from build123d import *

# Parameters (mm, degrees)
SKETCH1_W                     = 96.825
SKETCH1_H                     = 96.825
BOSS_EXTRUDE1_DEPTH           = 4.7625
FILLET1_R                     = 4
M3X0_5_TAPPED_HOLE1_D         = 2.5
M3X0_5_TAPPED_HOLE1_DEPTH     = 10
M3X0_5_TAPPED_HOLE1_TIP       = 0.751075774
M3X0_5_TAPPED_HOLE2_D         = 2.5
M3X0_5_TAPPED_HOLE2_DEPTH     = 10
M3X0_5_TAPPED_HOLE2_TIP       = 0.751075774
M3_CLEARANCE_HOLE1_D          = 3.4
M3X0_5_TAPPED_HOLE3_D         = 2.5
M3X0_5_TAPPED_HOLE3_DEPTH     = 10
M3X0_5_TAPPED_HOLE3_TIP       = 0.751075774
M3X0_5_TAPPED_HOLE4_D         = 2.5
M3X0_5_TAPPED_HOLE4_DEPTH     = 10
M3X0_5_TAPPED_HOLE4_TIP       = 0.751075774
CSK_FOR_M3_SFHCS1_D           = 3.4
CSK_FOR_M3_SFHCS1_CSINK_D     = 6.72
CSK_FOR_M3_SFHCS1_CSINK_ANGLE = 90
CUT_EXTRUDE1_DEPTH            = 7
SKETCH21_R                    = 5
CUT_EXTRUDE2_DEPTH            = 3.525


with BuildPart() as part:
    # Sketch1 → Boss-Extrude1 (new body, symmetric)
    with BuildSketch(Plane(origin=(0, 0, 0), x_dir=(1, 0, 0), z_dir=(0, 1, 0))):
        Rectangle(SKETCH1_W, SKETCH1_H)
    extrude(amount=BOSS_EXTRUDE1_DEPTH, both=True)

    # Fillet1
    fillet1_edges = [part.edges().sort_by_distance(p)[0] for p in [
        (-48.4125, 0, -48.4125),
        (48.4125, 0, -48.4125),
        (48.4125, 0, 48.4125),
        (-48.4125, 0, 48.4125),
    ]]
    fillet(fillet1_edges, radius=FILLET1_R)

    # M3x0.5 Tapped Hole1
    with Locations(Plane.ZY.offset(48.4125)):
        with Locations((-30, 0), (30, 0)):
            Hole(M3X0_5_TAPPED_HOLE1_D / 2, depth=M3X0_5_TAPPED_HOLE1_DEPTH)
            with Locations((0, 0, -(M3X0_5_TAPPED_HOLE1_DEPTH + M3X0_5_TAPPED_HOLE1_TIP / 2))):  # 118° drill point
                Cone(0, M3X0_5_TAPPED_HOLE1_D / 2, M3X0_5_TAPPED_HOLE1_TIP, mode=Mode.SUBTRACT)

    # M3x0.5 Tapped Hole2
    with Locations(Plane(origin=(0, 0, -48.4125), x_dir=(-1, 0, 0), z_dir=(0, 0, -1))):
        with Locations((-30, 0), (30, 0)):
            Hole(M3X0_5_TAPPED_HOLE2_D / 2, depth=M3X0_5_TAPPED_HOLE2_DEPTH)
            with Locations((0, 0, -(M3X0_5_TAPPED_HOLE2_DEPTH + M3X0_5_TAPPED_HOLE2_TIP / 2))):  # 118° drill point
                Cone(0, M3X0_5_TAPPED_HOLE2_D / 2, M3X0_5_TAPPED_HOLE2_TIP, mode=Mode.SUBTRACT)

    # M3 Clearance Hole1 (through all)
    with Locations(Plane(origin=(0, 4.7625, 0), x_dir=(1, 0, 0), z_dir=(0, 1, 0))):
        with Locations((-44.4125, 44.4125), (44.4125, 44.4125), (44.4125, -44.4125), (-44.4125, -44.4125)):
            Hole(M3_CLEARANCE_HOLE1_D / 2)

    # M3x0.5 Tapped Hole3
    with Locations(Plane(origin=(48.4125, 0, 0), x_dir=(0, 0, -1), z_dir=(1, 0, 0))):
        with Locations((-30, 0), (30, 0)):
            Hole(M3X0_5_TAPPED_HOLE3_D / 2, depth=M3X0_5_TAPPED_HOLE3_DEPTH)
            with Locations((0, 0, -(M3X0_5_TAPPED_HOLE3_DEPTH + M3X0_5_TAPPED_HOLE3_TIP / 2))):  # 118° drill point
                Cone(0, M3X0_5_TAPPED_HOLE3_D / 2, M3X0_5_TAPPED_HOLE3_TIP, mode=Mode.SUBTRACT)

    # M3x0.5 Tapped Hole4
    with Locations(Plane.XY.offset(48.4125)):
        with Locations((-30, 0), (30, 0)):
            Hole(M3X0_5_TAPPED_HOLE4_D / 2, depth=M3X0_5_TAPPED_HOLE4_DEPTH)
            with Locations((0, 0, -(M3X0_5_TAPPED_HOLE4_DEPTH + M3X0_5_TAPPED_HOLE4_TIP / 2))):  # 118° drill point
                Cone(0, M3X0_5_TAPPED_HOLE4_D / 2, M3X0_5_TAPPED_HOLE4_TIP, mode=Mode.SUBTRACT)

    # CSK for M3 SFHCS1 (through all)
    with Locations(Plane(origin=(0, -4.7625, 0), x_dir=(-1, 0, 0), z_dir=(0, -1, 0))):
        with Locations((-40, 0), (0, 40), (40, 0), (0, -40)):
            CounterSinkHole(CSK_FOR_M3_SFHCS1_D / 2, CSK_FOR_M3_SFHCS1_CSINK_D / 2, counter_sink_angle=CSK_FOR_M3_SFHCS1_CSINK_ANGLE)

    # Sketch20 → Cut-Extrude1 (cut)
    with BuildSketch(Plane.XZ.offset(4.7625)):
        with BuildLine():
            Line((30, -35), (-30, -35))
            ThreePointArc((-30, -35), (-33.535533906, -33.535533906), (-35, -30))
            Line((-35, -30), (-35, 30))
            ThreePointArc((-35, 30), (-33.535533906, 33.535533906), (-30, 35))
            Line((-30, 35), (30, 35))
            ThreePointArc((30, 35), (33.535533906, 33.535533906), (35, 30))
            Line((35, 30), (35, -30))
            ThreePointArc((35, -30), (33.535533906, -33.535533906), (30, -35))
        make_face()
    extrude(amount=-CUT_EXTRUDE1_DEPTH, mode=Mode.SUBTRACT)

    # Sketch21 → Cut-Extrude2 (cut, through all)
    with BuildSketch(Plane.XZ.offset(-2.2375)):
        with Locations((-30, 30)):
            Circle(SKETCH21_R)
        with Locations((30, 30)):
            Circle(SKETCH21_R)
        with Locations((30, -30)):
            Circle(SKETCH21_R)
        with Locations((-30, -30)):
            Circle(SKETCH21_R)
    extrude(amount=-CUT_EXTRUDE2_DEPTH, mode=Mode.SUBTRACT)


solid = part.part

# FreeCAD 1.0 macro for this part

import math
import FreeCAD as App
import Part
import Sketcher
from FreeCAD import Vector
Q = App.Units.Quantity


def edges_at(feature, points):
    """Names of the edges that pass closest to the given points."""
    edges = feature.Shape.Edges
    near = lambda p: min(range(len(edges)), key=lambda i: edges[i].distToShape(Part.Vertex(*p))[0])
    return sorted({f"Edge{near(p) + 1}" for p in points})

doc = App.newDocument("Part")
params = doc.addObject("Spreadsheet::Sheet", "Params")
for row, (alias, value) in enumerate([
    ("pad1_length", "9.525 mm"),
    ("fillet_radius", "4 mm"),
    ("sketch2_diameter", "2.5 mm"),
    ("hole_diameter", "2.5 mm"),
    ("hole_depth", "10 mm"),
    ("sketch3_diameter", "2.5 mm"),
    ("hole2_diameter", "2.5 mm"),
    ("hole2_depth", "10 mm"),
    ("sketch4_diameter", "3.4 mm"),
    ("hole3_diameter", "3.4 mm"),
    ("sketch5_diameter", "2.5 mm"),
    ("hole4_diameter", "2.5 mm"),
    ("hole4_depth", "10 mm"),
    ("sketch6_diameter", "2.5 mm"),
    ("hole5_diameter", "2.5 mm"),
    ("hole5_depth", "10 mm"),
    ("sketch7_diameter", "3.4 mm"),
    ("hole6_diameter", "3.4 mm"),
    ("hole6_csink_diameter", "6.72 mm"),
    ("sketch8_radius", "5 mm"),
    ("sketch8_width", "60 mm"),
    ("pocket1_length", "7 mm"),
    ("sketch9_diameter", "10 mm"),
], start=1):
    params.set(f"A{row}", alias)
    params.set(f"B{row}", "=" + value)
    params.setAlias(f"B{row}", alias)

body = doc.addObject("PartDesign::Body", "Body")

sketch1 = doc.addObject("Sketcher::SketchObject", "Sketch")
body.addObject(sketch1)
sketch1.AttachmentSupport = (doc.XZ_Plane, [""])
sketch1.MapMode = "FlatFace"
sketch1.addGeometry([
    Part.LineSegment(Vector(-48, -48, 0), Vector(-48, 48, 0)),
    Part.LineSegment(Vector(-48, 48, 0), Vector(48, 48, 0)),
    Part.LineSegment(Vector(48, 48, 0), Vector(48, -48, 0)),
    Part.LineSegment(Vector(48, -48, 0), Vector(-48, -48, 0)),
], False)
sketch1.addConstraint([
    Sketcher.Constraint("Coincident", 0, 2, 1, 1),
    Sketcher.Constraint("Coincident", 1, 2, 2, 1),
    Sketcher.Constraint("Coincident", 2, 2, 3, 1),
    Sketcher.Constraint("Coincident", 3, 2, 0, 1),
    Sketcher.Constraint("Vertical", 0),
    Sketcher.Constraint("Horizontal", 1),
    Sketcher.Constraint("Vertical", 2),
    Sketcher.Constraint("Horizontal", 3),
    Sketcher.Constraint("Symmetric", 0, 2, 2, 2, -1, 1),
    Sketcher.Constraint("Equal", 3, 0),
    Sketcher.Constraint("DistanceX", 1, 1, 1, 2, Q("96.825 mm")),
])
pad1 = doc.addObject("PartDesign::Pad", "Pad")
body.addObject(pad1)
pad1.Profile = sketch1
pad1.setExpression("Length", "Params.pad1_length")
pad1.Midplane = True
doc.recompute()

fillet = doc.addObject("PartDesign::Fillet", "Fillet")
body.addObject(fillet)
fillet.Base = (pad1, edges_at(pad1, [
    (-48.413, 0, -48.413),
    (48.413, 0, -48.413),
    (48.413, 0, 48.413),
    (-48.413, 0, 48.413),
]))
fillet.setExpression("Radius", "Params.fillet_radius")

sketch2 = doc.addObject("Sketcher::SketchObject", "Sketch001")
body.addObject(sketch2)
sketch2.AttachmentSupport = (doc.YZ_Plane, [""])
sketch2.MapMode = "FlatFace"
sketch2.AttachmentOffset = App.Placement(Vector(0, 0, -48.4125), App.Rotation())
sketch2.addGeometry([
    Part.Circle(Vector(0, -30, 0), Vector(0, 0, 1), 1.2),
    Part.Circle(Vector(0, 30, 0), Vector(0, 0, 1), 1.2),
], False)
sketch2.addConstraint([
    Sketcher.Constraint("Equal", 0, 1),
    Sketcher.Constraint("Symmetric", 0, 3, 1, 3, -1, 1),
    Sketcher.Constraint("PointOnObject", 0, 3, -2),
    Sketcher.Constraint("Diameter", 0, Q("2.5 mm")),
    Sketcher.Constraint("DistanceY", 0, 3, -1, 1, Q("30 mm")),
])
sketch2.setExpression("Constraints[3]", "Params.sketch2_diameter")
doc.recompute()
hole = doc.addObject("PartDesign::Hole", "Hole")
body.addObject(hole)
hole.Profile = sketch2
hole.ThreadType = "None"
hole.setExpression("Diameter", "Params.hole_diameter")
hole.DepthType = "Dimension"
hole.setExpression("Depth", "Params.hole_depth")
hole.DrillPoint = "Angled"
hole.DrillPointAngle = 118
hole.Reversed = True

sketch3 = doc.addObject("Sketcher::SketchObject", "Sketch002")
body.addObject(sketch3)
sketch3.AttachmentSupport = (doc.XY_Plane, [""])
sketch3.MapMode = "FlatFace"
sketch3.AttachmentOffset = App.Placement(Vector(0, 0, -48.4125), App.Rotation())
sketch3.addGeometry([
    Part.Circle(Vector(30, 0, 0), Vector(0, 0, 1), 1.2),
    Part.Circle(Vector(-30, 0, 0), Vector(0, 0, 1), 1.2),
], False)
sketch3.addConstraint([
    Sketcher.Constraint("Equal", 0, 1),
    Sketcher.Constraint("Symmetric", 0, 3, 1, 3, -1, 1),
    Sketcher.Constraint("PointOnObject", 0, 3, -1),
    Sketcher.Constraint("Diameter", 0, Q("2.5 mm")),
    Sketcher.Constraint("DistanceX", -1, 1, 0, 3, Q("30 mm")),
])
sketch3.setExpression("Constraints[3]", "Params.sketch3_diameter")
doc.recompute()
hole2 = doc.addObject("PartDesign::Hole", "Hole001")
body.addObject(hole2)
hole2.Profile = sketch3
hole2.ThreadType = "None"
hole2.setExpression("Diameter", "Params.hole2_diameter")
hole2.DepthType = "Dimension"
hole2.setExpression("Depth", "Params.hole2_depth")
hole2.DrillPoint = "Angled"
hole2.DrillPointAngle = 118
hole2.Reversed = True

sketch4 = doc.addObject("Sketcher::SketchObject", "Sketch003")
body.addObject(sketch4)
sketch4.AttachmentSupport = (doc.XZ_Plane, [""])
sketch4.MapMode = "FlatFace"
sketch4.AttachmentOffset = App.Placement(Vector(0, 0, -4.7625), App.Rotation())
sketch4.addGeometry([
    Part.Circle(Vector(-44.4, -44.4, 0), Vector(0, 0, 1), 1.7),
    Part.Circle(Vector(44.4, -44.4, 0), Vector(0, 0, 1), 1.7),
    Part.Circle(Vector(44.4, 44.4, 0), Vector(0, 0, 1), 1.7),
    Part.Circle(Vector(-44.4, 44.4, 0), Vector(0, 0, 1), 1.7),
], False)
sketch4.addConstraint([
    Sketcher.Constraint("Equal", 0, 1),
    Sketcher.Constraint("Equal", 1, 2),
    Sketcher.Constraint("Equal", 2, 3),
    Sketcher.Constraint("Symmetric", 0, 3, 2, 3, -1, 1),
    Sketcher.Constraint("Symmetric", 1, 3, 3, 3, -1, 1),
    Sketcher.Constraint("Symmetric", 0, 3, 1, 3, -2),
    Sketcher.Constraint("Diameter", 0, Q("3.4 mm")),
    Sketcher.Constraint("DistanceX", 0, 3, 1, 3, Q("88.825 mm")),
    Sketcher.Constraint("DistanceY", 1, 3, 2, 3, Q("88.825 mm")),
])
sketch4.setExpression("Constraints[6]", "Params.sketch4_diameter")
doc.recompute()
hole3 = doc.addObject("PartDesign::Hole", "Hole002")
body.addObject(hole3)
hole3.Profile = sketch4
hole3.ThreadType = "None"
hole3.setExpression("Diameter", "Params.hole3_diameter")
hole3.DepthType = "ThroughAll"
hole3.Reversed = True

sketch5 = doc.addObject("Sketcher::SketchObject", "Sketch004")
body.addObject(sketch5)
sketch5.AttachmentSupport = (doc.YZ_Plane, [""])
sketch5.MapMode = "FlatFace"
sketch5.AttachmentOffset = App.Placement(Vector(0, 0, 48.4125), App.Rotation())
sketch5.addGeometry([
    Part.Circle(Vector(0, 30, 0), Vector(0, 0, 1), 1.2),
    Part.Circle(Vector(0, -30, 0), Vector(0, 0, 1), 1.2),
], False)
sketch5.addConstraint([
    Sketcher.Constraint("Equal", 0, 1),
    Sketcher.Constraint("Symmetric", 0, 3, 1, 3, -1, 1),
    Sketcher.Constraint("PointOnObject", 0, 3, -2),
    Sketcher.Constraint("Diameter", 0, Q("2.5 mm")),
    Sketcher.Constraint("DistanceY", -1, 1, 0, 3, Q("30 mm")),
])
sketch5.setExpression("Constraints[3]", "Params.sketch5_diameter")
doc.recompute()
hole4 = doc.addObject("PartDesign::Hole", "Hole003")
body.addObject(hole4)
hole4.Profile = sketch5
hole4.ThreadType = "None"
hole4.setExpression("Diameter", "Params.hole4_diameter")
hole4.DepthType = "Dimension"
hole4.setExpression("Depth", "Params.hole4_depth")
hole4.DrillPoint = "Angled"
hole4.DrillPointAngle = 118

sketch6 = doc.addObject("Sketcher::SketchObject", "Sketch005")
body.addObject(sketch6)
sketch6.AttachmentSupport = (doc.XY_Plane, [""])
sketch6.MapMode = "FlatFace"
sketch6.AttachmentOffset = App.Placement(Vector(0, 0, 48.4125), App.Rotation())
sketch6.addGeometry([
    Part.Circle(Vector(-30, 0, 0), Vector(0, 0, 1), 1.2),
    Part.Circle(Vector(30, 0, 0), Vector(0, 0, 1), 1.2),
], False)
sketch6.addConstraint([
    Sketcher.Constraint("Equal", 0, 1),
    Sketcher.Constraint("Symmetric", 0, 3, 1, 3, -1, 1),
    Sketcher.Constraint("PointOnObject", 0, 3, -1),
    Sketcher.Constraint("Diameter", 0, Q("2.5 mm")),
    Sketcher.Constraint("DistanceX", 0, 3, -1, 1, Q("30 mm")),
])
sketch6.setExpression("Constraints[3]", "Params.sketch6_diameter")
doc.recompute()
hole5 = doc.addObject("PartDesign::Hole", "Hole004")
body.addObject(hole5)
hole5.Profile = sketch6
hole5.ThreadType = "None"
hole5.setExpression("Diameter", "Params.hole5_diameter")
hole5.DepthType = "Dimension"
hole5.setExpression("Depth", "Params.hole5_depth")
hole5.DrillPoint = "Angled"
hole5.DrillPointAngle = 118

sketch7 = doc.addObject("Sketcher::SketchObject", "Sketch006")
body.addObject(sketch7)
sketch7.AttachmentSupport = (doc.XZ_Plane, [""])
sketch7.MapMode = "FlatFace"
sketch7.AttachmentOffset = App.Placement(Vector(0, 0, 4.7625), App.Rotation())
sketch7.addGeometry([
    Part.Circle(Vector(40, 0, 0), Vector(0, 0, 1), 1.7),
    Part.Circle(Vector(0, -40, 0), Vector(0, 0, 1), 1.7),
    Part.Circle(Vector(-40, 0, 0), Vector(0, 0, 1), 1.7),
    Part.Circle(Vector(0, 40, 0), Vector(0, 0, 1), 1.7),
], False)
sketch7.addConstraint([
    Sketcher.Constraint("Equal", 0, 1),
    Sketcher.Constraint("Equal", 1, 2),
    Sketcher.Constraint("Equal", 2, 3),
    Sketcher.Constraint("Symmetric", 0, 3, 2, 3, -1, 1),
    Sketcher.Constraint("Symmetric", 1, 3, 3, 3, -1, 1),
    Sketcher.Constraint("PointOnObject", 0, 3, -1),
    Sketcher.Constraint("PointOnObject", 1, 3, -2),
    Sketcher.Constraint("Diameter", 0, Q("3.4 mm")),
    Sketcher.Constraint("DistanceX", -1, 1, 0, 3, Q("40 mm")),
    Sketcher.Constraint("DistanceY", 1, 3, -1, 1, Q("40 mm")),
])
sketch7.setExpression("Constraints[7]", "Params.sketch7_diameter")
doc.recompute()
hole6 = doc.addObject("PartDesign::Hole", "Hole005")
body.addObject(hole6)
hole6.Profile = sketch7
hole6.ThreadType = "None"
hole6.setExpression("Diameter", "Params.hole6_diameter")
hole6.DepthType = "ThroughAll"
hole6.HoleCutType = "Countersink"
hole6.setExpression("HoleCutDiameter", "Params.hole6_csink_diameter")
hole6.HoleCutCountersinkAngle = 90

sketch8 = doc.addObject("Sketcher::SketchObject", "Sketch007")
body.addObject(sketch8)
sketch8.AttachmentSupport = (doc.XZ_Plane, [""])
sketch8.MapMode = "FlatFace"
sketch8.AttachmentOffset = App.Placement(Vector(0, 0, 4.7625), App.Rotation())
sketch8.addGeometry([
    Part.LineSegment(Vector(-30, -35, 0), Vector(30, -35, 0)),
    Part.ArcOfCircle(Part.Circle(Vector(30, -30, 0), Vector(0, 0, 1), 5), math.radians(-90), math.radians(0)),
    Part.LineSegment(Vector(35, -30, 0), Vector(35, 30, 0)),
    Part.ArcOfCircle(Part.Circle(Vector(30, 30, 0), Vector(0, 0, 1), 5), math.radians(0), math.radians(90)),
    Part.LineSegment(Vector(30, 35, 0), Vector(-30, 35, 0)),
    Part.ArcOfCircle(Part.Circle(Vector(-30, 30, 0), Vector(0, 0, 1), 5), math.radians(90), math.radians(180)),
    Part.LineSegment(Vector(-35, 30, 0), Vector(-35, -30, 0)),
    Part.ArcOfCircle(Part.Circle(Vector(-30, -30, 0), Vector(0, 0, 1), 5), math.radians(180), math.radians(270)),
], False)
sketch8.addConstraint([
    Sketcher.Constraint("Tangent", 0, 2, 1, 1),
    Sketcher.Constraint("Tangent", 1, 2, 2, 1),
    Sketcher.Constraint("Tangent", 2, 2, 3, 1),
    Sketcher.Constraint("Tangent", 3, 2, 4, 1),
    Sketcher.Constraint("Tangent", 4, 2, 5, 1),
    Sketcher.Constraint("Tangent", 5, 2, 6, 1),
    Sketcher.Constraint("Tangent", 6, 2, 7, 1),
    Sketcher.Constraint("Tangent", 7, 2, 0, 1),
    Sketcher.Constraint("Horizontal", 0),
    Sketcher.Constraint("Vertical", 2),
    Sketcher.Constraint("Horizontal", 4),
    Sketcher.Constraint("Vertical", 6),
    Sketcher.Constraint("Equal", 1, 3),
    Sketcher.Constraint("Equal", 3, 5),
    Sketcher.Constraint("Equal", 5, 7),
    Sketcher.Constraint("Symmetric", 1, 3, 5, 3, -1, 1),
    Sketcher.Constraint("Equal", 4, 2),
    Sketcher.Constraint("Radius", 1, Q("5 mm")),
    Sketcher.Constraint("DistanceX", 0, 1, 0, 2, Q("60 mm")),
])
sketch8.setExpression("Constraints[17]", "Params.sketch8_radius")
sketch8.setExpression("Constraints[18]", "Params.sketch8_width")
pocket1 = doc.addObject("PartDesign::Pocket", "Pocket")
body.addObject(pocket1)
pocket1.Profile = sketch8
pocket1.setExpression("Length", "Params.pocket1_length")

sketch9 = doc.addObject("Sketcher::SketchObject", "Sketch008")
body.addObject(sketch9)
sketch9.AttachmentSupport = (doc.XZ_Plane, [""])
sketch9.MapMode = "FlatFace"
sketch9.AttachmentOffset = App.Placement(Vector(0, 0, -2.2375), App.Rotation())
sketch9.addGeometry([
    Part.Circle(Vector(-30, 30, 0), Vector(0, 0, 1), 5),
    Part.Circle(Vector(30, 30, 0), Vector(0, 0, 1), 5),
    Part.Circle(Vector(30, -30, 0), Vector(0, 0, 1), 5),
    Part.Circle(Vector(-30, -30, 0), Vector(0, 0, 1), 5),
], False)
sketch9.addConstraint([
    Sketcher.Constraint("Equal", 0, 1),
    Sketcher.Constraint("Equal", 1, 2),
    Sketcher.Constraint("Equal", 2, 3),
    Sketcher.Constraint("Symmetric", 0, 3, 2, 3, -1, 1),
    Sketcher.Constraint("Symmetric", 1, 3, 3, 3, -1, 1),
    Sketcher.Constraint("Symmetric", 0, 3, 1, 3, -2),
    Sketcher.Constraint("Diameter", 0, Q("10 mm")),
    Sketcher.Constraint("DistanceX", 0, 3, -1, 1, Q("30 mm")),
    Sketcher.Constraint("DistanceY", -1, 1, 0, 3, Q("30 mm")),
])
sketch9.setExpression("Constraints[6]", "Params.sketch9_diameter")
pocket2 = doc.addObject("PartDesign::Pocket", "Pocket001")
body.addObject(pocket2)
pocket2.Profile = sketch9
pocket2.Type = "ThroughAll"

doc.recompute()
